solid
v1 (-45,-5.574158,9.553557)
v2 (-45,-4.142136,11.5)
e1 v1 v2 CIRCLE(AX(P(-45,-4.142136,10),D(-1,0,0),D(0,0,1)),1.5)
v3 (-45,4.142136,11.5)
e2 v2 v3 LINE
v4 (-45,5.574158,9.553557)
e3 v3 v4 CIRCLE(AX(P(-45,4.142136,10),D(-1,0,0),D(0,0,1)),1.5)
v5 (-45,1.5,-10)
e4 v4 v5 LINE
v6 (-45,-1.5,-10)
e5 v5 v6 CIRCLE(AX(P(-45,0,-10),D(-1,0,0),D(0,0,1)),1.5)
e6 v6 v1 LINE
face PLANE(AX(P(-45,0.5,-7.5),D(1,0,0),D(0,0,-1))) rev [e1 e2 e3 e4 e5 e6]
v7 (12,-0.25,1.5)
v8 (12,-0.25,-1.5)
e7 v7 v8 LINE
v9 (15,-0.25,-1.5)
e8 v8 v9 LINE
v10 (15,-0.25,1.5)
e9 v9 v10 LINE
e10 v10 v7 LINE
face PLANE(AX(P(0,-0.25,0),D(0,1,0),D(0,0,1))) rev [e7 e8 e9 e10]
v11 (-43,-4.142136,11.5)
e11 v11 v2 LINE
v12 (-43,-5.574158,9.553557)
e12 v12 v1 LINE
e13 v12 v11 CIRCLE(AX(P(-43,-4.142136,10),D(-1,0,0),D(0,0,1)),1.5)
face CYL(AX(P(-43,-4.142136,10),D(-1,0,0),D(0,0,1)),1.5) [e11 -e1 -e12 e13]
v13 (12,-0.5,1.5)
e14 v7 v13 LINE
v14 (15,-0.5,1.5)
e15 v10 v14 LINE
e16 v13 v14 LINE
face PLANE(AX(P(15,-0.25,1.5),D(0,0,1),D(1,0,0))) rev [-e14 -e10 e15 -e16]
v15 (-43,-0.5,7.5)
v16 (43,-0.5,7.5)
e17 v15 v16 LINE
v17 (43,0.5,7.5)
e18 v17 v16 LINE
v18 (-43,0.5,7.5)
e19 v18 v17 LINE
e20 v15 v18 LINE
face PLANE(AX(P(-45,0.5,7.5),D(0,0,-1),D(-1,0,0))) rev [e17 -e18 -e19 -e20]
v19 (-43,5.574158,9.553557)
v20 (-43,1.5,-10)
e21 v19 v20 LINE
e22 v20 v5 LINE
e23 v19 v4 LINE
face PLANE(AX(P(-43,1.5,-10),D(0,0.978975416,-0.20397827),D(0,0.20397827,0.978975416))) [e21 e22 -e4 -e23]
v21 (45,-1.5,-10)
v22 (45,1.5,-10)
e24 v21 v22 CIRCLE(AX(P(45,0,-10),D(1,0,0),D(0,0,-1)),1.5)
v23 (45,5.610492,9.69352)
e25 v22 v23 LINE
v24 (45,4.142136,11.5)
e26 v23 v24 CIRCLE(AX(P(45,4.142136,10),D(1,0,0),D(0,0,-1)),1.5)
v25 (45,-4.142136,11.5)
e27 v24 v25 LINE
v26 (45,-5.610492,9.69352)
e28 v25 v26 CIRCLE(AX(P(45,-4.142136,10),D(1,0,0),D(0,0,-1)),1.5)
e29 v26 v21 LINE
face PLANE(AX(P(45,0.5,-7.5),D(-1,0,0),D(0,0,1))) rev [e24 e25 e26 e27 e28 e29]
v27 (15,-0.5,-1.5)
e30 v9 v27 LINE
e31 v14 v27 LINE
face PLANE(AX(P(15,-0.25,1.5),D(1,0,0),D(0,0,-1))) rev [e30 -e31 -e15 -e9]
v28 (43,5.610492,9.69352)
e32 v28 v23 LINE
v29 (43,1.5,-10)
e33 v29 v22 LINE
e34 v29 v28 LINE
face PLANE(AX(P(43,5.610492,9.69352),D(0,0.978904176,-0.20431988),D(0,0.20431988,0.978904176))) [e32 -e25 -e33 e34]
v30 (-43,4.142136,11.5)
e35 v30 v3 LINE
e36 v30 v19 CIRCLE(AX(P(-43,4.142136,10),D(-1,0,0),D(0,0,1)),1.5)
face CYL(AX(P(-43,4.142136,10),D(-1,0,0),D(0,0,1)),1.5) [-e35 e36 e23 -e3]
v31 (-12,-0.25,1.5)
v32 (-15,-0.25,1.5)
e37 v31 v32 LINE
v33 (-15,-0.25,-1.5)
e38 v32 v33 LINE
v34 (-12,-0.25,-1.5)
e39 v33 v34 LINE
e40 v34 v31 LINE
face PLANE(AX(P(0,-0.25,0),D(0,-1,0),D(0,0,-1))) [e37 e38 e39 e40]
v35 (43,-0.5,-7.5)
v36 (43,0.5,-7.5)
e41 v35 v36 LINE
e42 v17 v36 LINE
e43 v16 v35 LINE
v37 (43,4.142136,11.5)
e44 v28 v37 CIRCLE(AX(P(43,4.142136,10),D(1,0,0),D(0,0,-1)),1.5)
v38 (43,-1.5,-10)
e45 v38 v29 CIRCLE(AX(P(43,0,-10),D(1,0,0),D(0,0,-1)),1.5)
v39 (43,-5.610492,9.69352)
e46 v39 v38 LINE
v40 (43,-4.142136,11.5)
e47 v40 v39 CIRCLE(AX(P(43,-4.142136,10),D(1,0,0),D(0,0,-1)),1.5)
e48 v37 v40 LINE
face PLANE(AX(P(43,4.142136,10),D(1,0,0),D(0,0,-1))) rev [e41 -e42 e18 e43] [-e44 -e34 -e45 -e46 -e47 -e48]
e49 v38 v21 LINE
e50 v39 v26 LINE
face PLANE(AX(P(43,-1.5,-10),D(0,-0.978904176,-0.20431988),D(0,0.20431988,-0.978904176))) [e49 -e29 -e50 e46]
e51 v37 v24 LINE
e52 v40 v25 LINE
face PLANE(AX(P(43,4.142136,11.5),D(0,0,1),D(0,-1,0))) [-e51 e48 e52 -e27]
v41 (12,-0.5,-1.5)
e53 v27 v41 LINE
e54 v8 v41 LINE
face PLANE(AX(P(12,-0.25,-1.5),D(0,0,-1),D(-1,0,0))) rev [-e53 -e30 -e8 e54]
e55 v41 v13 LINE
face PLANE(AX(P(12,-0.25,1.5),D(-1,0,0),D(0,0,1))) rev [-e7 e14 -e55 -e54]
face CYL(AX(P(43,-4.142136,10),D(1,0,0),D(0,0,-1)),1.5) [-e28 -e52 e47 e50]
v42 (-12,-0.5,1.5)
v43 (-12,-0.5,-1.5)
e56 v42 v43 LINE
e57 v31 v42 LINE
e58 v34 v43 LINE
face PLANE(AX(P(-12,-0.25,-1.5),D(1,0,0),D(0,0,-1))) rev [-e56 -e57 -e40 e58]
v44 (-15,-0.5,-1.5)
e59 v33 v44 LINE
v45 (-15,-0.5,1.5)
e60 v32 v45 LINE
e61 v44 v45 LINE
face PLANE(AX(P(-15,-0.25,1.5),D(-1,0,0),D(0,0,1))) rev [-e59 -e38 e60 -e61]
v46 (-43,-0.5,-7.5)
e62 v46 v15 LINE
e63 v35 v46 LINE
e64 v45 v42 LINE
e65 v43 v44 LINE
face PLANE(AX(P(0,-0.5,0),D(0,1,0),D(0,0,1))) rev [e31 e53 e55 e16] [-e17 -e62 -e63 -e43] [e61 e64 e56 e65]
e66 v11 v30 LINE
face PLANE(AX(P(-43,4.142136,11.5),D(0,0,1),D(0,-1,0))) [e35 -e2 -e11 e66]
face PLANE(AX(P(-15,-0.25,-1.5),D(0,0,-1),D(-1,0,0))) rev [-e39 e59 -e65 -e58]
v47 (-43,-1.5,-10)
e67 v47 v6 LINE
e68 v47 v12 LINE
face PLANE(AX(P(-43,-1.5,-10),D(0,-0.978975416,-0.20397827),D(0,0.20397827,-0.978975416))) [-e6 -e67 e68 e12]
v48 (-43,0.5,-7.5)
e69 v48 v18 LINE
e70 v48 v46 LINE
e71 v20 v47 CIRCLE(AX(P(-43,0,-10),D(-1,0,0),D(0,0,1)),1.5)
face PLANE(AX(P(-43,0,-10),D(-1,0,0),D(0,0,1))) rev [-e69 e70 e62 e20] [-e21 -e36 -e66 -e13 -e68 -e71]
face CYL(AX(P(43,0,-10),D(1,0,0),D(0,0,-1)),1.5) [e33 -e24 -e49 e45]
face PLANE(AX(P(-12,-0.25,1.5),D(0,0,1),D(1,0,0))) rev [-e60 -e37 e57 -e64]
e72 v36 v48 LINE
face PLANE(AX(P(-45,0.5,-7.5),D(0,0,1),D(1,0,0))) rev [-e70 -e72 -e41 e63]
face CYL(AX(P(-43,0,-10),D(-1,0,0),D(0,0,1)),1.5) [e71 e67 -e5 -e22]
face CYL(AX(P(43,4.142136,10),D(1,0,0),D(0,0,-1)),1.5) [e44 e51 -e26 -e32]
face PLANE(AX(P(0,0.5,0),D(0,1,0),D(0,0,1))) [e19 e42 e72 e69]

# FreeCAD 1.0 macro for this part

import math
import FreeCAD as App
import Part
import Sketcher


def add_polygon(sketch, points):
    """Adds a closed chain of lines whose ends are joined by coincident constraints."""
    first, n = sketch.GeometryCount, len(points)
    for a, b in zip(points, points[1:] + points[:1]):
        sketch.addGeometry(Part.LineSegment(App.Vector(*a, 0), App.Vector(*b, 0)), False)
    for i in range(n):
        sketch.addConstraint(Sketcher.Constraint("Coincident", first + i, 2, first + (i + 1) % n, 1))

doc = App.newDocument("Part")
body = doc.addObject("PartDesign::Body", "Body")

# Sketch on XZ plane
sketch1 = body.newObject("Sketcher::SketchObject", "Sketch")
sketch1.AttachmentSupport = (doc.getObject("XZ_Plane"), [""])
sketch1.MapMode = "FlatFace"
add_polygon(sketch1, [(-45, -7.5), (-45, 7.5), (45, 7.5), (45, -7.5)])  # lines 0-3
sketch1.addConstraint([
    Sketcher.Constraint("Vertical", 0),
    Sketcher.Constraint("Horizontal", 1),
    Sketcher.Constraint("Vertical", 2),
    Sketcher.Constraint("Horizontal", 3),
    Sketcher.Constraint("Symmetric", 0, 2, 2, 2, -1, 1),
    Sketcher.Constraint("DistanceX", 1, 1, 1, 2, 90.0),
    Sketcher.Constraint("DistanceY", 0, 1, 0, 2, 15.0),
])
pad1 = body.newObject("PartDesign::Pad", "Pad")
pad1.Profile = sketch1
pad1.Length = 1
pad1.Midplane = True

# Sketch on YZ plane
sketch2 = body.newObject("Sketcher::SketchObject", "Sketch001")
sketch2.AttachmentSupport = (doc.getObject("YZ_Plane"), [""])
sketch2.MapMode = "FlatFace"
sketch2.AttachmentOffset = App.Placement(App.Vector(0, 0, 45), App.Rotation())
sketch2.addGeometry([
    Part.LineSegment(App.Vector(4.142136, 11.5, 0), App.Vector(-4.142136, 11.5, 0)),  # 0
    Part.ArcOfCircle(Part.Circle(App.Vector(-4.142136, 10, 0), App.Vector(0, 0, 1), 1.5), math.radians(90), math.radians(191.789688)),  # 1
    Part.LineSegment(App.Vector(-5.610492, 9.69352, 0), App.Vector(-1.5, -10, 0)),  # 2
    Part.ArcOfCircle(Part.Circle(App.Vector(0, -10, 0), App.Vector(0, 0, 1), 1.5), math.radians(180), math.radians(360)),  # 3
    Part.LineSegment(App.Vector(1.5, -10, 0), App.Vector(5.610492, 9.69352, 0)),  # 4
    Part.ArcOfCircle(Part.Circle(App.Vector(4.142136, 10, 0), App.Vector(0, 0, 1), 1.5), math.radians(-11.789688), math.radians(90)),  # 5
], False)
sketch2.addConstraint([
    Sketcher.Constraint("Tangent", 0, 2, 1, 1),
    Sketcher.Constraint("Tangent", 1, 2, 2, 1),
    Sketcher.Constraint("Coincident", 2, 2, 3, 1),
    Sketcher.Constraint("Coincident", 3, 2, 4, 1),
    Sketcher.Constraint("Tangent", 4, 2, 5, 1),
    Sketcher.Constraint("Tangent", 5, 2, 0, 1),
    Sketcher.Constraint("Horizontal", 0),
    Sketcher.Constraint("Equal", 1, 3),
    Sketcher.Constraint("Equal", 3, 5),
    Sketcher.Constraint("Symmetric", 2, 2, 3, 2, -2),
    Sketcher.Constraint("Horizontal", 3, 3, 2, 2),
    Sketcher.Constraint("Horizontal", 1, 2, 4, 2),
    Sketcher.Constraint("Radius", 1, 1.5),
    Sketcher.Constraint("DistanceY", -1, 1, 1, 3, 10.0),
    Sketcher.Constraint("DistanceY", 3, 3, -1, 1, 10.0),
    Sketcher.Constraint("DistanceX", 0, 2, 0, 1, 8.284271),
])
pad2 = body.newObject("PartDesign::Pad", "Pad001")
pad2.Profile = sketch2
pad2.Length = 2
pad2.Reversed = True

# Sketch on YZ plane
sketch3 = body.newObject("Sketcher::SketchObject", "Sketch002")
sketch3.AttachmentSupport = (doc.getObject("YZ_Plane"), [""])
sketch3.MapMode = "FlatFace"
sketch3.AttachmentOffset = App.Placement(App.Vector(0, 0, -43), App.Rotation())
sketch3.addGeometry([
    Part.LineSegment(App.Vector(5.574158, 9.553557, 0), App.Vector(1.5, -10, 0)),  # 0
    Part.ArcOfCircle(Part.Circle(App.Vector(0, -10, 0), App.Vector(0, 0, 1), 1.5), math.radians(180), math.radians(360)),  # 1
    Part.LineSegment(App.Vector(-1.5, -10, 0), App.Vector(-5.574158, 9.553557, 0)),  # 2
    Part.ArcOfCircle(Part.Circle(App.Vector(-4.142136, 10, 0), App.Vector(0, 0, 1), 1.5), math.radians(90), math.radians(197.315223)),  # 3
    Part.LineSegment(App.Vector(-4.142136, 11.5, 0), App.Vector(4.142136, 11.5, 0)),  # 4
    Part.ArcOfCircle(Part.Circle(App.Vector(4.142136, 10, 0), App.Vector(0, 0, 1), 1.5), math.radians(-17.315223), math.radians(90)),  # 5
], False)
sketch3.addConstraint([
    Sketcher.Constraint("Coincident", 0, 2, 1, 2),
    Sketcher.Constraint("Coincident", 1, 1, 2, 1),
    Sketcher.Constraint("Coincident", 2, 2, 3, 2),
    Sketcher.Constraint("Tangent", 3, 1, 4, 1),
    Sketcher.Constraint("Tangent", 4, 2, 5, 2),
    Sketcher.Constraint("Coincident", 5, 1, 0, 1),
    Sketcher.Constraint("Horizontal", 4),
    Sketcher.Constraint("Equal", 1, 3),
    Sketcher.Constraint("Equal", 3, 5),
    Sketcher.Constraint("Symmetric", 0, 2, 1, 1, -2),
    Sketcher.Constraint("Symmetric", 2, 2, 5, 1, -2),
    Sketcher.Constraint("Horizontal", 1, 3, 0, 2),
    Sketcher.Constraint("Radius", 1, 1.5),
    Sketcher.Constraint("DistanceY", 1, 3, -1, 1, 10.0),
    Sketcher.Constraint("DistanceY", -1, 1, 3, 3, 10.0),
    Sketcher.Constraint("DistanceX", 4, 1, 4, 2, 8.284271),
    Sketcher.Constraint("Distance", 0, 19.973492),
])
pad3 = body.newObject("PartDesign::Pad", "Pad002")
pad3.Profile = sketch3
pad3.Length = 2
pad3.Reversed = True

# Sketch on XZ plane
sketch4 = body.newObject("Sketcher::SketchObject", "Sketch003")
sketch4.AttachmentSupport = (doc.getObject("XZ_Plane"), [""])
sketch4.MapMode = "FlatFace"
sketch4.AttachmentOffset = App.Placement(App.Vector(0, 0, 0.5), App.Rotation())
add_polygon(sketch4, [(12, 1.5), (12, -1.5), (15, -1.5), (15, 1.5)])  # lines 0-3
add_polygon(sketch4, [(-15, 1.5), (-15, -1.5), (-12, -1.5), (-12, 1.5)])  # lines 4-7
sketch4.addConstraint([
    Sketcher.Constraint("Vertical", 0),
    Sketcher.Constraint("Horizontal", 1),
    Sketcher.Constraint("Vertical", 2),
    Sketcher.Constraint("Horizontal", 3),
    Sketcher.Constraint("Vertical", 4),
    Sketcher.Constraint("Horizontal", 5),
    Sketcher.Constraint("Vertical", 6),
    Sketcher.Constraint("Horizontal", 7),
    Sketcher.Constraint("Symmetric", 2, 2, 4, 2, -1, 1),
    Sketcher.Constraint("Symmetric", 0, 2, 6, 2, -1, 1),
    Sketcher.Constraint("Horizontal", 1, 2, 4, 2),
    Sketcher.Constraint("Equal", 7, 0),
    Sketcher.Constraint("DistanceX", 1, 1, 1, 2, 3.0),
    Sketcher.Constraint("DistanceX", -1, 1, 0, 2, 12.0),
])
pocket1 = body.newObject("PartDesign::Pocket", "Pocket")
pocket1.Profile = sketch4
pocket1.Length = 0.5
pocket1.Midplane = True

doc.recompute()
